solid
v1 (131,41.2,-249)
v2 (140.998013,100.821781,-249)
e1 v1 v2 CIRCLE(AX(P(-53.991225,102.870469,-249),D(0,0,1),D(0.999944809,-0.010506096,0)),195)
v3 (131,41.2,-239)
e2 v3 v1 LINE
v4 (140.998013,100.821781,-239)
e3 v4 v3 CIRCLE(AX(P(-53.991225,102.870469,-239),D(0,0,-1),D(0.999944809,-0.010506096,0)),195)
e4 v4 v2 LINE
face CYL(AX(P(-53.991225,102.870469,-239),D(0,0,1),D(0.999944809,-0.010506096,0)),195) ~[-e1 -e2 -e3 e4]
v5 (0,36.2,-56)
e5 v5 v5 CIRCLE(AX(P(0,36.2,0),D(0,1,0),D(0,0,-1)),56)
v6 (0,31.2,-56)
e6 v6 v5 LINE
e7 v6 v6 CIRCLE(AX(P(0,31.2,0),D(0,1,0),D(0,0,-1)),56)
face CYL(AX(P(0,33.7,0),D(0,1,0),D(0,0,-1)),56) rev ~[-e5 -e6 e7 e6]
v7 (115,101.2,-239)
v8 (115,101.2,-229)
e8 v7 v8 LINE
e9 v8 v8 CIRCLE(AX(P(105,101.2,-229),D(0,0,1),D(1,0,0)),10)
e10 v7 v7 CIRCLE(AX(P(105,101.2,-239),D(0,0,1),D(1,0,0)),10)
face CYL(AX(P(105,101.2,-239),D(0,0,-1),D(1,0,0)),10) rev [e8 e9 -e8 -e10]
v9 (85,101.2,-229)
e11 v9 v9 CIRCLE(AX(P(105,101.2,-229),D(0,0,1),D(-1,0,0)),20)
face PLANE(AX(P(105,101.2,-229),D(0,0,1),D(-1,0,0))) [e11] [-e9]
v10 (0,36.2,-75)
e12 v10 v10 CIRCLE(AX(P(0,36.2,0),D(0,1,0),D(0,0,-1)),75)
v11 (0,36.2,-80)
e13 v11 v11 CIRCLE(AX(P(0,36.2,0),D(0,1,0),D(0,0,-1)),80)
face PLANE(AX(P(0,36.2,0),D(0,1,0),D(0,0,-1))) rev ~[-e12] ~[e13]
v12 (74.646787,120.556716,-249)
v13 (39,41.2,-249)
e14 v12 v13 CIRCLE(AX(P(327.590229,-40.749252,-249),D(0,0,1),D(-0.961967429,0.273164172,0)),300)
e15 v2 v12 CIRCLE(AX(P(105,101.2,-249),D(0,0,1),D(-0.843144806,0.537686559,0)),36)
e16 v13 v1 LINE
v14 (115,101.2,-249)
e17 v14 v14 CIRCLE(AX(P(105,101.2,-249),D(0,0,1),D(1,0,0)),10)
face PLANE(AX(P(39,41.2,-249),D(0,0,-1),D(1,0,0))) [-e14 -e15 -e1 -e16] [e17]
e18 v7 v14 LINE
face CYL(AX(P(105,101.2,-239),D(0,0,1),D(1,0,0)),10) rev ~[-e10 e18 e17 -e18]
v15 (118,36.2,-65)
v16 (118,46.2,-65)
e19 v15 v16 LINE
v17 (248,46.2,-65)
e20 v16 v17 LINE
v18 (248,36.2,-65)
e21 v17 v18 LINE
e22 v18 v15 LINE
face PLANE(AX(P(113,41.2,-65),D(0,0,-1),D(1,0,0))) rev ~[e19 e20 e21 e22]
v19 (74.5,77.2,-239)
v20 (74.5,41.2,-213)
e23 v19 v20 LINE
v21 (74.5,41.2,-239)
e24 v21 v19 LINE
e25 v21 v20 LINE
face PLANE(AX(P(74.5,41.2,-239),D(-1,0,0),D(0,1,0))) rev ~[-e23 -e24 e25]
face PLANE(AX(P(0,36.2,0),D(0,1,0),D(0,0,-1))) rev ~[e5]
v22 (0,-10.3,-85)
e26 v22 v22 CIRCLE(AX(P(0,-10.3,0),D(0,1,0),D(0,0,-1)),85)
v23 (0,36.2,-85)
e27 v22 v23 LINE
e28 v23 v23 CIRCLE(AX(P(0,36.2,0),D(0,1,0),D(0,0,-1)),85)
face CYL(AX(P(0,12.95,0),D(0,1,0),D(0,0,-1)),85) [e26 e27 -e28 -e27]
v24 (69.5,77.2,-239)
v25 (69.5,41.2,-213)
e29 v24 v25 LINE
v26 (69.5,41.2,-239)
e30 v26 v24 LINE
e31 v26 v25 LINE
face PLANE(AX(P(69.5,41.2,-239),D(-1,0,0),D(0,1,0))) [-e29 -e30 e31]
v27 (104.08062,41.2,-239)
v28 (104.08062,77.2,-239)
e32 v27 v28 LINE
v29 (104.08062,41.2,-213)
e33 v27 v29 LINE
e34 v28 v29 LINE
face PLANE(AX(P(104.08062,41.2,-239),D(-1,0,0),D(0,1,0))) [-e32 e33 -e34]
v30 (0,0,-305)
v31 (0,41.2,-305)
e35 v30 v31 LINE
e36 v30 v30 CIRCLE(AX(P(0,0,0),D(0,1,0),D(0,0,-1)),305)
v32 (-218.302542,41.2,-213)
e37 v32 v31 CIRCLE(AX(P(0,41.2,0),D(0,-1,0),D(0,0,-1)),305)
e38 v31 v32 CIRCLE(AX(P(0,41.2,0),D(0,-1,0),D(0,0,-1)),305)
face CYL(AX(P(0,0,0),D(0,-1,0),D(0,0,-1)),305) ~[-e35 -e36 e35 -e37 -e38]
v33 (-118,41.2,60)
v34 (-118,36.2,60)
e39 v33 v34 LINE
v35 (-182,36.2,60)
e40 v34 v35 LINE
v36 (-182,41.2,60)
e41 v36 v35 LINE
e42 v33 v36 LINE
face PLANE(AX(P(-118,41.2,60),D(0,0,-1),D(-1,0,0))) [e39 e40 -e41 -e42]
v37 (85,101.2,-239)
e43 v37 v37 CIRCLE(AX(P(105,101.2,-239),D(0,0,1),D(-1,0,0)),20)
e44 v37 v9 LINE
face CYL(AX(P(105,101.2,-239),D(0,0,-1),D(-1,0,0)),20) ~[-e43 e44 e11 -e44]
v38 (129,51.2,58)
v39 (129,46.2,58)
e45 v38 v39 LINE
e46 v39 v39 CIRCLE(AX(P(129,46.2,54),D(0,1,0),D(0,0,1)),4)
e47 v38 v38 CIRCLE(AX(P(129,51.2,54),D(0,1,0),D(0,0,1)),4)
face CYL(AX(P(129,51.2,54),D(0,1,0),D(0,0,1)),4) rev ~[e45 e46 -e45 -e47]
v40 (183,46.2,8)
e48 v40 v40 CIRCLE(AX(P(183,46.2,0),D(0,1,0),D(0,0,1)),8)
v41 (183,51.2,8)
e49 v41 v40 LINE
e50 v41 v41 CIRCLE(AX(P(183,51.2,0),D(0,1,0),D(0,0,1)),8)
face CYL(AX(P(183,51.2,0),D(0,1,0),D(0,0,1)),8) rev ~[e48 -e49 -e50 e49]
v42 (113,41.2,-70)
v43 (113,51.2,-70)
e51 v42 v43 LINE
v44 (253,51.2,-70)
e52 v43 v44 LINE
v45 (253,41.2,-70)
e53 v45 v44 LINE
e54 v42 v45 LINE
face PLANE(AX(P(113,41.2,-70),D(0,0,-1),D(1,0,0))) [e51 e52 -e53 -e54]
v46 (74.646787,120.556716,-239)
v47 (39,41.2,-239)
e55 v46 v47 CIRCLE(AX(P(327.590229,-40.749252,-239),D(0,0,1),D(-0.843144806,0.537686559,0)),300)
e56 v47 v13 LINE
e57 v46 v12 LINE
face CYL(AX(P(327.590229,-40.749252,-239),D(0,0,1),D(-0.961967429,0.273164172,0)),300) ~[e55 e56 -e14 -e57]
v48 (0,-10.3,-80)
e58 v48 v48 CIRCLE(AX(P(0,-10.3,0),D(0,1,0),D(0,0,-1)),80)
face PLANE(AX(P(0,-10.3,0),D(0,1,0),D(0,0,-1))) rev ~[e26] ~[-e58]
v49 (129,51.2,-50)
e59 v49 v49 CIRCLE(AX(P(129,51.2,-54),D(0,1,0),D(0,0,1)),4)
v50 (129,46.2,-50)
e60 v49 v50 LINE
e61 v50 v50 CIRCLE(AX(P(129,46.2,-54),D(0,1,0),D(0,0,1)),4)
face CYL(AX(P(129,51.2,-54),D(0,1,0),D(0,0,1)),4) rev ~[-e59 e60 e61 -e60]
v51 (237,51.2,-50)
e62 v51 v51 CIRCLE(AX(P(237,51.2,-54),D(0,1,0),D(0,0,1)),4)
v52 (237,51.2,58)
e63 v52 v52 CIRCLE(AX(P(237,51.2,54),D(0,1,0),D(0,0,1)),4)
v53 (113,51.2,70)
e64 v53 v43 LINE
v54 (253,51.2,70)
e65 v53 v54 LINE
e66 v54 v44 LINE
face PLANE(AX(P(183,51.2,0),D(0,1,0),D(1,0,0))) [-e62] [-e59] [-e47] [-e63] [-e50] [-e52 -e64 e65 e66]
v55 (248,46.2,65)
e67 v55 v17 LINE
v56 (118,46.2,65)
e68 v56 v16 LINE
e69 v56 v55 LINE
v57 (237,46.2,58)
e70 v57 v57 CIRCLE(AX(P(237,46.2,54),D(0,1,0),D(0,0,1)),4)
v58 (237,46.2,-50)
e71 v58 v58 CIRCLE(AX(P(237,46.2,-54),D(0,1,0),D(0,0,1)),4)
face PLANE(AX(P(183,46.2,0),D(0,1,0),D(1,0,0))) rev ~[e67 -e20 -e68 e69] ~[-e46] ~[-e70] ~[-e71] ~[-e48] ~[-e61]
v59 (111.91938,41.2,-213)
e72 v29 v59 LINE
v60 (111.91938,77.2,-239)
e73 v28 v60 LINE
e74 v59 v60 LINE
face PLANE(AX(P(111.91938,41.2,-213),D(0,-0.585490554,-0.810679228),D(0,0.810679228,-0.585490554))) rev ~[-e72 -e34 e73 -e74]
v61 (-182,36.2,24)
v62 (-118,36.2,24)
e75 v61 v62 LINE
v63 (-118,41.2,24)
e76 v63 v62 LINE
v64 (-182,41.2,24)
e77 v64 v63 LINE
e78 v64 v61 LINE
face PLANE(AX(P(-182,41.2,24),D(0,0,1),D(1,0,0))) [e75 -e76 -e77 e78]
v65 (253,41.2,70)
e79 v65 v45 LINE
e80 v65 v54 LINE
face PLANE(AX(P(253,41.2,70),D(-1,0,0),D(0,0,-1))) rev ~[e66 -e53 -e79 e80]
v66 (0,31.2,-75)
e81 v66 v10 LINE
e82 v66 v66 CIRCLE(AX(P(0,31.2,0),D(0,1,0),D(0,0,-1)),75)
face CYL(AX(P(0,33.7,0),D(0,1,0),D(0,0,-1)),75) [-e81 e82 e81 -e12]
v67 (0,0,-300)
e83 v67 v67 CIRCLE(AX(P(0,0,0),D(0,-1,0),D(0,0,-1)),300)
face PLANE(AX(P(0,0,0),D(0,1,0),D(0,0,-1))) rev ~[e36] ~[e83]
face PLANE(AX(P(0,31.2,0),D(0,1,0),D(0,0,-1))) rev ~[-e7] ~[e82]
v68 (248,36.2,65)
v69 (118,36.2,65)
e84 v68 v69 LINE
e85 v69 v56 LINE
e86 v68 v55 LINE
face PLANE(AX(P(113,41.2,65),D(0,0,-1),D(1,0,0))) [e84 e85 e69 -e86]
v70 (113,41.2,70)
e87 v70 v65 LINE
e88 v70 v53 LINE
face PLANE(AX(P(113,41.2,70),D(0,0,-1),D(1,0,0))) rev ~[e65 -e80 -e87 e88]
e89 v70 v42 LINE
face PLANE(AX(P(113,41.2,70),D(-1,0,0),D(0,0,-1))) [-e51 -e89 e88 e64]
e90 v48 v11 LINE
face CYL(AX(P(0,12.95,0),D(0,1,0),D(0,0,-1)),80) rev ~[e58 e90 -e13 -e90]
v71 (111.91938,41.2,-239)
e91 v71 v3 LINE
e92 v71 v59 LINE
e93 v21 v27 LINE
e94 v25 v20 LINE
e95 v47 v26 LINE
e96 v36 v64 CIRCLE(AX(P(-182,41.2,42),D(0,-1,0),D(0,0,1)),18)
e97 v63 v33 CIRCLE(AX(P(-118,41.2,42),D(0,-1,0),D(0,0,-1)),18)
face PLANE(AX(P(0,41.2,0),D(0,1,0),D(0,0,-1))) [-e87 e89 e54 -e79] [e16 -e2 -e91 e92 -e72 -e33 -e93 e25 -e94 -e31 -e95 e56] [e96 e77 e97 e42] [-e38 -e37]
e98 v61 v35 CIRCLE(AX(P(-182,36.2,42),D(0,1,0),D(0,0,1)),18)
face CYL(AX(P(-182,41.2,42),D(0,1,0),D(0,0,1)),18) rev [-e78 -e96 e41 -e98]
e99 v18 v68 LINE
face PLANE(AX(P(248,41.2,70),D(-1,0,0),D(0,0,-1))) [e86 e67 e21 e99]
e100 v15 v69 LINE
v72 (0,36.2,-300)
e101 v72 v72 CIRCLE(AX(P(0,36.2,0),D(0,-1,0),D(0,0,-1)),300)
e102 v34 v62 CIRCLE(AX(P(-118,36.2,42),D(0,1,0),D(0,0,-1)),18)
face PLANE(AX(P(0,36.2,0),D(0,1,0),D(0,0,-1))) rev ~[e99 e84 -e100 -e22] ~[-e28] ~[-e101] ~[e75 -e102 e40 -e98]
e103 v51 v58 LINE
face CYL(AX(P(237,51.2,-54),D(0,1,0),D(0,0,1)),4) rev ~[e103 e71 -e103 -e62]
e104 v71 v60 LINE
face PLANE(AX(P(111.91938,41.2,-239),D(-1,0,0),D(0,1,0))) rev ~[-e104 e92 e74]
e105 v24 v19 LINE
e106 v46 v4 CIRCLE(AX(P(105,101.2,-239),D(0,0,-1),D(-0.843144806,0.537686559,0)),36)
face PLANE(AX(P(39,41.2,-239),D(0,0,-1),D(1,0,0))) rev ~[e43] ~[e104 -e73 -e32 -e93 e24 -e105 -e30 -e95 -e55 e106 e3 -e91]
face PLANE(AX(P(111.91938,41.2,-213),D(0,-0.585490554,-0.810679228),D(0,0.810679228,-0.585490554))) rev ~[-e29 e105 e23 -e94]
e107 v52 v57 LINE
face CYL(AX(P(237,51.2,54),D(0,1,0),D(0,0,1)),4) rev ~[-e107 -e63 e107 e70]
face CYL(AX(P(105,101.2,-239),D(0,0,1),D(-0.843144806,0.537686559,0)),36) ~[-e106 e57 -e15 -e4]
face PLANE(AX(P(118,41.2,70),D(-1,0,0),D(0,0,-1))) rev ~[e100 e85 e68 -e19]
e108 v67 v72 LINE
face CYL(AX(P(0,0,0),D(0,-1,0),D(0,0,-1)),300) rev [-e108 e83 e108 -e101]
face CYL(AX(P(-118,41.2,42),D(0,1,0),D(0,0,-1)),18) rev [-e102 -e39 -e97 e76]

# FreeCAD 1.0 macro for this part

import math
import FreeCAD as App
import Part
import Sketcher
from FreeCAD import Vector


def faces_at(feature, points):
    """Names of the faces that lie closest to the given points."""
    faces = feature.Shape.Faces
    near = lambda p: min(range(len(faces)), key=lambda i: faces[i].distToShape(Part.Vertex(*p))[0])
    return sorted({f"Face{near(p) + 1}" for p in points})


def add_polygon(sketch, points):
    """Adds a closed chain of lines whose ends are joined by coincident constraints."""
    first, n = sketch.GeometryCount, len(points)
    for a, b in zip(points, points[1:] + points[:1]):
        sketch.addGeometry(Part.LineSegment(App.Vector(*a, 0), App.Vector(*b, 0)), False)
    for i in range(n):
        sketch.addConstraint(Sketcher.Constraint("Coincident", first + i, 2, first + (i + 1) % n, 1))

doc = App.newDocument("Part")
body = doc.addObject("PartDesign::Body", "Body")

# Sketch on XZ plane
sketch1 = body.newObject("Sketcher::SketchObject", "Sketch")
sketch1.AttachmentSupport = (doc.getObject("XZ_Plane"), [""])
sketch1.MapMode = "FlatFace"
sketch1.addGeometry(Part.Circle(Vector(0, 0, 0), Vector(0, 0, 1), 305), False)
sketch1.addConstraint([
    Sketcher.Constraint("Coincident", 0, 3, -1, 1),
    Sketcher.Constraint("Diameter", 0, 610.0),
])
pad1 = body.newObject("PartDesign::Pad", "Pad")
pad1.Profile = sketch1
pad1.Length = 41.2
pad1.Reversed = True

# Sketch on XZ plane
sketch2 = body.newObject("Sketcher::SketchObject", "Sketch001")
sketch2.AttachmentSupport = (doc.getObject("XZ_Plane"), [""])
sketch2.MapMode = "FlatFace"
sketch2.AttachmentOffset = App.Placement(Vector(0, 0, -41.2), App.Rotation())
add_polygon(sketch2, [(113, -70), (113, 70), (253, 70), (253, -70)])  # lines 0-3
sketch2.addConstraint([
    Sketcher.Constraint("Vertical", 0),
    Sketcher.Constraint("Horizontal", 1),
    Sketcher.Constraint("Vertical", 2),
    Sketcher.Constraint("Horizontal", 3),
    Sketcher.Constraint("Equal", 3, 0),
    Sketcher.Constraint("DistanceX", 1, 1, 1, 2, 140.0),
    Sketcher.Constraint("DistanceX", -1, 1, 0, 2, 113.0),
    Sketcher.Constraint("DistanceY", -1, 1, 0, 2, 70.0),
])
pad2 = body.newObject("PartDesign::Pad", "Pad001")
pad2.Profile = sketch2
pad2.Length = 10
pad2.Reversed = True
doc.recompute()

thickness = body.newObject("PartDesign::Thickness", "Thickness")
thickness.Base = (pad2, faces_at(pad2, [(0, 0, 0)]))
thickness.Value = 5
thickness.Reversed = True
thickness.Join = "Intersection"

# Sketch on XZ plane
sketch3 = body.newObject("Sketcher::SketchObject", "Sketch002")
sketch3.AttachmentSupport = (doc.getObject("XZ_Plane"), [""])
sketch3.MapMode = "FlatFace"
sketch3.AttachmentOffset = App.Placement(Vector(0, 0, -41.2), App.Rotation())
sketch3.addGeometry([
    Part.LineSegment(Vector(-118, 24, 0), Vector(-182, 24, 0)),
    Part.ArcOfCircle(Part.Circle(Vector(-182, 42, 0), Vector(0, 0, 1), 18), math.radians(90), math.radians(270)),
    Part.LineSegment(Vector(-182, 60, 0), Vector(-118, 60, 0)),
    Part.ArcOfCircle(Part.Circle(Vector(-118, 42, 0), Vector(0, 0, 1), 18), math.radians(-90), math.radians(90)),
], False)
sketch3.addConstraint([
    Sketcher.Constraint("Tangent", 0, 2, 1, 2),
    Sketcher.Constraint("Tangent", 1, 1, 2, 1),
    Sketcher.Constraint("Tangent", 2, 2, 3, 2),
    Sketcher.Constraint("Tangent", 3, 1, 0, 1),
    Sketcher.Constraint("Horizontal", 0),
    Sketcher.Constraint("Horizontal", 2),
    Sketcher.Constraint("Radius", 1, 18.0),
    Sketcher.Constraint("DistanceX", 0, 2, 0, 1, 64.0),
    Sketcher.Constraint("DistanceX", 1, 3, -1, 1, 182.0),
    Sketcher.Constraint("DistanceY", -1, 1, 1, 3, 42.0),
])
pocket1 = body.newObject("PartDesign::Pocket", "Pocket")
pocket1.Profile = sketch3
pocket1.Type = "ThroughAll"
pocket1.Reversed = True

# Sketch on XZ plane
sketch4 = body.newObject("Sketcher::SketchObject", "Sketch003")
sketch4.AttachmentSupport = (doc.getObject("XZ_Plane"), [""])
sketch4.MapMode = "FlatFace"
sketch4.AttachmentOffset = App.Placement(Vector(0, 0, -41.2), App.Rotation())
add_polygon(sketch4, [(39, -249), (39, -239), (159, -239), (159, -249)])  # lines 0-3
sketch4.addConstraint([
    Sketcher.Constraint("Vertical", 0),
    Sketcher.Constraint("Horizontal", 1),
    Sketcher.Constraint("Vertical", 2),
    Sketcher.Constraint("Horizontal", 3),
    Sketcher.Constraint("DistanceX", 1, 1, 1, 2, 120.0),
    Sketcher.Constraint("DistanceY", 0, 1, 0, 2, 10.0),
    Sketcher.Constraint("DistanceX", -1, 1, 0, 2, 39.0),
    Sketcher.Constraint("DistanceY", 0, 2, -1, 1, 239.0),
])
pad3 = body.newObject("PartDesign::Pad", "Pad002")
pad3.Profile = sketch4
pad3.Length = 150
pad3.Reversed = True

# Sketch on XY plane
sketch5 = body.newObject("Sketcher::SketchObject", "Sketch004")
sketch5.AttachmentSupport = (doc.getObject("XY_Plane"), [""])
sketch5.MapMode = "FlatFace"
sketch5.AttachmentOffset = App.Placement(Vector(0, 0, -239), App.Rotation())
sketch5.addGeometry([
    Part.LineSegment(Vector(39, 191.2, 0), Vector(39, 41.2, 0)),  # 0
    Part.ArcOfCircle(Part.Circle(Vector(327.590229, -40.749252, 0), Vector(0, 0, 1), 300), math.radians(147.473709), math.radians(164.147359)),  # 1
    Part.ArcOfCircle(Part.Circle(Vector(105, 101.2, 0), Vector(0, 0, 1), 36), math.radians(-0.601966), math.radians(147.473709)),  # 2
    Part.ArcOfCircle(Part.Circle(Vector(-53.991225, 102.870469, 0), Vector(0, 0, 1), 195), math.radians(-18.436824), math.radians(-0.601966)),  # 3
    Part.LineSegment(Vector(131, 41.2, 0), Vector(159, 41.2, 0)),  # 4
    Part.LineSegment(Vector(159, 41.2, 0), Vector(159, 191.2, 0)),  # 5
    Part.LineSegment(Vector(159, 191.2, 0), Vector(39, 191.2, 0)),  # 6
], False)
sketch5.addConstraint([
    Sketcher.Constraint("Coincident", 0, 2, 1, 2),
    Sketcher.Constraint("Tangent", 1, 1, 2, 2),
    Sketcher.Constraint("Tangent", 2, 1, 3, 2),
    Sketcher.Constraint("Coincident", 3, 1, 4, 1),
    Sketcher.Constraint("Coincident", 4, 2, 5, 1),
    Sketcher.Constraint("Coincident", 5, 2, 6, 1),
    Sketcher.Constraint("Coincident", 6, 2, 0, 1),
    Sketcher.Constraint("Vertical", 0),
    Sketcher.Constraint("Horizontal", 4),
    Sketcher.Constraint("Vertical", 5),
    Sketcher.Constraint("Horizontal", 6),
    Sketcher.Constraint("Horizontal", 0, 2, 3, 1),
    Sketcher.Constraint("Radius", 1, 300.0),
    Sketcher.Constraint("Radius", 2, 36.0),
    Sketcher.Constraint("Radius", 3, 195.0),
    Sketcher.Constraint("DistanceX", 4, 1, 4, 2, 28.0),
    Sketcher.Constraint("DistanceX", 6, 2, 6, 1, 120.0),
    Sketcher.Constraint("DistanceY", 0, 2, 0, 1, 150.0),
    Sketcher.Constraint("DistanceX", -1, 1, 2, 3, 105.0),
    Sketcher.Constraint("DistanceX", -1, 1, 0, 2, 39.0),
    Sketcher.Constraint("DistanceY", 0, 2, 2, 3, 60.0),
    Sketcher.Constraint("DistanceY", -1, 1, 2, 3, 101.2),
])
pocket2 = body.newObject("PartDesign::Pocket", "Pocket001")
pocket2.Profile = sketch5
pocket2.Length = 150

# Sketch on XY plane
sketch6 = body.newObject("Sketcher::SketchObject", "Sketch005")
sketch6.AttachmentSupport = (doc.getObject("XY_Plane"), [""])
sketch6.MapMode = "FlatFace"
sketch6.AttachmentOffset = App.Placement(Vector(0, 0, -239), App.Rotation())
sketch6.addGeometry(Part.Circle(Vector(105, 101.2, 0), Vector(0, 0, 1), 10), False)
sketch6.addConstraint([
    Sketcher.Constraint("Diameter", 0, 20.0),
    Sketcher.Constraint("DistanceX", -1, 1, 0, 3, 105.0),
    Sketcher.Constraint("DistanceY", -1, 1, 0, 3, 101.2),
])
pocket3 = body.newObject("PartDesign::Pocket", "Pocket002")
pocket3.Profile = sketch6
pocket3.Length = 150

# Sketch on XY plane
sketch7 = body.newObject("Sketcher::SketchObject", "Sketch006")
sketch7.AttachmentSupport = (doc.getObject("XY_Plane"), [""])
sketch7.MapMode = "FlatFace"
sketch7.AttachmentOffset = App.Placement(Vector(0, 0, -239), App.Rotation())
sketch7.addGeometry([
    Part.Circle(Vector(105, 101.2, 0), Vector(0, 0, 1), 20),
    Part.Circle(Vector(105, 101.2, 0), Vector(0, 0, 1), 10),
], False)
sketch7.addConstraint([
    Sketcher.Constraint("Coincident", 1, 3, 0, 3),
    Sketcher.Constraint("Diameter", 0, 40.0),
    Sketcher.Constraint("Diameter", 1, 20.0),
    Sketcher.Constraint("DistanceX", -1, 1, 0, 3, 105.0),
    Sketcher.Constraint("DistanceY", -1, 1, 0, 3, 101.2),
])
pad4 = body.newObject("PartDesign::Pad", "Pad003")
pad4.Profile = sketch7
pad4.Length = 10

# Sketch on XY plane
sketch8 = body.newObject("Sketcher::SketchObject", "Sketch007")
sketch8.AttachmentSupport = (doc.getObject("XY_Plane"), [""])
sketch8.MapMode = "FlatFace"
sketch8.AttachmentOffset = App.Placement(Vector(0, 0, -239), App.Rotation())
add_polygon(sketch8, [(69.5, 77.2), (69.5, 41.2), (74.5, 41.2), (74.5, 77.2)])  # lines 0-3
add_polygon(sketch8, [(104.08062, 77.2), (104.08062, 41.2), (111.91938, 41.2), (111.91938, 77.2)])  # lines 4-7
sketch8.addConstraint([
    Sketcher.Constraint("Vertical", 0),
    Sketcher.Constraint("Horizontal", 1),
    Sketcher.Constraint("Vertical", 2),
    Sketcher.Constraint("Horizontal", 3),
    Sketcher.Constraint("Vertical", 4),
    Sketcher.Constraint("Horizontal", 5),
    Sketcher.Constraint("Vertical", 6),
    Sketcher.Constraint("Horizontal", 7),
    Sketcher.Constraint("Horizontal", 1, 2, 4, 2),
    Sketcher.Constraint("Horizontal", 3, 2, 6, 2),
    Sketcher.Constraint("DistanceX", 1, 1, 1, 2, 5.0),
    Sketcher.Constraint("DistanceY", 0, 2, 0, 1, 36.0),
    Sketcher.Constraint("DistanceX", -1, 1, 0, 2, 69.5),
    Sketcher.Constraint("DistanceY", -1, 1, 0, 2, 41.2),
    Sketcher.Constraint("DistanceX", 5, 1, 5, 2, 7.838761),
    Sketcher.Constraint("DistanceX", -1, 1, 4, 2, 104.08062),
])
pad5 = body.newObject("PartDesign::Pad", "Pad004")
pad5.Profile = sketch8
pad5.Length = 26

# Sketch on YZ plane
sketch9 = body.newObject("Sketcher::SketchObject", "Sketch008")
sketch9.AttachmentSupport = (doc.getObject("YZ_Plane"), [""])
sketch9.MapMode = "FlatFace"
sketch9.AttachmentOffset = App.Placement(Vector(0, 0, 111.91938), App.Rotation())
add_polygon(sketch9, [(41.2, -213), (77.2, -239), (77.2, -213)])  # lines 0-2
sketch9.addConstraint([
    Sketcher.Constraint("Vertical", 1),
    Sketcher.Constraint("Horizontal", 2),
    Sketcher.Constraint("DistanceX", 2, 2, 2, 1, 36.0),
    Sketcher.Constraint("DistanceY", 1, 1, 1, 2, 26.0),
    Sketcher.Constraint("DistanceY", 0, 2, -1, 1, 239.0),
    Sketcher.Constraint("DistanceX", -1, 1, 0, 2, 77.2),
])
pocket4 = body.newObject("PartDesign::Pocket", "Pocket003")
pocket4.Profile = sketch9
pocket4.Type = "ThroughAll"

# Sketch on XY plane
sketch10 = body.newObject("Sketcher::SketchObject", "Sketch009")
sketch10.AttachmentSupport = (doc.getObject("XY_Plane"), [""])
sketch10.MapMode = "FlatFace"
add_polygon(sketch10, [(-75, 36.2), (-75, 31.2), (-56, 31.2), (-56, 36.2)])  # lines 0-3
add_polygon(sketch10, [(-85, 36.2), (-85, -10.3), (-80, -10.3), (-80, 36.2)])  # lines 4-7
sketch10.addConstraint([
    Sketcher.Constraint("Vertical", 0),
    Sketcher.Constraint("Horizontal", 1),
    Sketcher.Constraint("Vertical", 2),
    Sketcher.Constraint("Horizontal", 3),
    Sketcher.Constraint("Vertical", 4),
    Sketcher.Constraint("Horizontal", 5),
    Sketcher.Constraint("Vertical", 6),
    Sketcher.Constraint("Horizontal", 7),
    Sketcher.Constraint("Horizontal", 3, 2, 6, 2),
    Sketcher.Constraint("Equal", 7, 0),
    Sketcher.Constraint("DistanceX", 1, 1, 1, 2, 19.0),
    Sketcher.Constraint("DistanceX", 5, 1, 5, 2, 5.0),
    Sketcher.Constraint("DistanceY", 4, 2, 4, 1, 46.5),
    Sketcher.Constraint("DistanceX", 0, 2, -1, 1, 75.0),
    Sketcher.Constraint("DistanceX", 4, 2, -1, 1, 85.0),
    Sketcher.Constraint("DistanceY", -1, 1, 0, 2, 31.2),
])
revolution = body.newObject("PartDesign::Revolution", "Revolution")
revolution.Profile = sketch10
revolution.ReferenceAxis = (sketch10, ["V_Axis"])
revolution.Angle = 360

# Sketch on XZ plane
sketch11 = body.newObject("Sketcher::SketchObject", "Sketch010")
sketch11.AttachmentSupport = (doc.getObject("XZ_Plane"), [""])
sketch11.MapMode = "FlatFace"
sketch11.AttachmentOffset = App.Placement(Vector(0, 0, -51.2), App.Rotation())
sketch11.addGeometry([
    Part.Circle(Vector(237, -54, 0), Vector(0, 0, 1), 4),  # 0
    Part.Circle(Vector(237, 54, 0), Vector(0, 0, 1), 4),  # 1
    Part.Circle(Vector(129, 54, 0), Vector(0, 0, 1), 4),  # 2
    Part.Circle(Vector(129, -54, 0), Vector(0, 0, 1), 4),  # 3
    Part.Circle(Vector(183, 0, 0), Vector(0, 0, 1), 8),  # 4
], False)
sketch11.addConstraint([
    Sketcher.Constraint("Equal", 0, 1),
    Sketcher.Constraint("Equal", 1, 2),
    Sketcher.Constraint("Equal", 2, 3),
    Sketcher.Constraint("Symmetric", 0, 3, 1, 3, -1),
    Sketcher.Constraint("Symmetric", 2, 3, 3, 3, -1),
    Sketcher.Constraint("PointOnObject", 4, 3, -1),
    Sketcher.Constraint("Horizontal", 1, 3, 2, 3),
    Sketcher.Constraint("Diameter", 0, 8.0),
    Sketcher.Constraint("Diameter", 4, 16.0),
    Sketcher.Constraint("DistanceX", -1, 1, 0, 3, 237.0),
    Sketcher.Constraint("DistanceY", 0, 3, -1, 1, 54.0),
    Sketcher.Constraint("DistanceX", -1, 1, 2, 3, 129.0),
    Sketcher.Constraint("DistanceX", -1, 1, 4, 3, 183.0),
])
pocket5 = body.newObject("PartDesign::Pocket", "Pocket004")
pocket5.Profile = sketch11
pocket5.Type = "ThroughAll"
pocket5.Reversed = True

doc.recompute()
